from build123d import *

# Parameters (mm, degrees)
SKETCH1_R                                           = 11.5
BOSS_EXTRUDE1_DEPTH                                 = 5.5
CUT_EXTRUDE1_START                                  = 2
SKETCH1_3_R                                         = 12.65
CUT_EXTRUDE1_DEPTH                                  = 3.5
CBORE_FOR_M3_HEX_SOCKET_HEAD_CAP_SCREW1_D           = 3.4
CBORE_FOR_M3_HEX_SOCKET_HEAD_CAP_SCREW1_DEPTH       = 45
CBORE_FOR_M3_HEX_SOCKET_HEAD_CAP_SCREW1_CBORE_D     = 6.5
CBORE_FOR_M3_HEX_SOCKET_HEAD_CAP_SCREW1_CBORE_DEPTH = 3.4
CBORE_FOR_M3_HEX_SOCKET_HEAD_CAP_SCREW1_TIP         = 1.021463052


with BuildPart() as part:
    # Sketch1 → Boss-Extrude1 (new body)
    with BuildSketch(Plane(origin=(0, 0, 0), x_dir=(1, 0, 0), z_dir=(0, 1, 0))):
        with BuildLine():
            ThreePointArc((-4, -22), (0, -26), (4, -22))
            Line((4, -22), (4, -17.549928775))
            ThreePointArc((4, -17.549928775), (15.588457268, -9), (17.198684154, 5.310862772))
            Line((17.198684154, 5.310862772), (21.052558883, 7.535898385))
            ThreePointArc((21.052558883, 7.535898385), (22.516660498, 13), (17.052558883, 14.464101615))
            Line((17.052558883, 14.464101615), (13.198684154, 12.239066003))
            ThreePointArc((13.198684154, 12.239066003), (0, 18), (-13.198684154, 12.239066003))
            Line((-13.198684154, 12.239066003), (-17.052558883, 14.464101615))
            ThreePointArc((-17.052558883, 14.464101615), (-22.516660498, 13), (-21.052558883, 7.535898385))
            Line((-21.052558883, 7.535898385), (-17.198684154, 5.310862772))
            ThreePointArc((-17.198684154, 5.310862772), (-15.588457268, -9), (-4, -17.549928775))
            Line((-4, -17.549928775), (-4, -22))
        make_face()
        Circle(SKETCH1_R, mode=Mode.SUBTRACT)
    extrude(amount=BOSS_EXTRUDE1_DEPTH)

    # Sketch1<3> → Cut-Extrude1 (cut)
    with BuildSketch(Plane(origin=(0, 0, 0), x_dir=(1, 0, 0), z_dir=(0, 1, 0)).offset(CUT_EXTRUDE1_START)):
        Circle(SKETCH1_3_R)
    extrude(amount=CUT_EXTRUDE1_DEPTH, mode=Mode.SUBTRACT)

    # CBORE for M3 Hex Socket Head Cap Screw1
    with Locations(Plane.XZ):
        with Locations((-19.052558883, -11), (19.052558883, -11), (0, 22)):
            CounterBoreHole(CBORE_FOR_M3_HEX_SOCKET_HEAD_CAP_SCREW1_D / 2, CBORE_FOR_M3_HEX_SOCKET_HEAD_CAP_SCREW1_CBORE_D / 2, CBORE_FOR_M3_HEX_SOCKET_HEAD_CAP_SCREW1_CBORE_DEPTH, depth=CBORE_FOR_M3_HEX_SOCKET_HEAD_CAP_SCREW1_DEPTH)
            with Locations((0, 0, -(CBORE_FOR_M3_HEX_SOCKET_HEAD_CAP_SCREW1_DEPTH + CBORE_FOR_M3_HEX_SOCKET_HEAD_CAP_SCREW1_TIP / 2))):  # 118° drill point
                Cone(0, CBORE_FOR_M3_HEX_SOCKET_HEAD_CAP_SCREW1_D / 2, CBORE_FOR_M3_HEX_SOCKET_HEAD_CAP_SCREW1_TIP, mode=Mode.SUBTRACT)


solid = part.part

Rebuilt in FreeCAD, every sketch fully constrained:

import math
import FreeCAD as App
import Part
import Sketcher
from FreeCAD import Vector
Q = App.Units.Quantity

doc = App.newDocument("Part")
body = doc.addObject("PartDesign::Body", "Body")

# Sketch on XZ plane
sketch1 = doc.addObject("Sketcher::SketchObject", "Sketch")
body.addObject(sketch1)
sketch1.AttachmentSupport = (doc.XZ_Plane, [""])
sketch1.MapMode = "FlatFace"
sketch1.addGeometry([
    Part.ArcOfCircle(Part.Circle(Vector(0, 22, 0), Vector(0, 0, 1), 4), math.radians(0), math.radians(180)),  # 0
    Part.LineSegment(Vector(4, 22, 0), Vector(4, 17.549929, 0)),  # 1
    Part.ArcOfCircle(Part.Circle(Vector(0, 0, 0), Vector(0, 0, 1), 18), math.radians(-17.160412), math.radians(77.160412)),  # 2
    Part.LineSegment(Vector(17.198684, -5.310863, 0), Vector(21.052559, -7.535898, 0)),  # 3
    Part.ArcOfCircle(Part.Circle(Vector(19.052559, -11, 0), Vector(0, 0, 1), 4), math.radians(-120), math.radians(60)),  # 4
    Part.LineSegment(Vector(17.052559, -14.464102, 0), Vector(13.198684, -12.239066, 0)),  # 5
    Part.ArcOfCircle(Part.Circle(Vector(0, 0, 0), Vector(0, 0, 1), 18), math.radians(-137.160412), math.radians(-42.839588)),  # 6
    Part.LineSegment(Vector(-13.198684, -12.239066, 0), Vector(-17.052559, -14.464102, 0)),  # 7
    Part.ArcOfCircle(Part.Circle(Vector(-19.052559, -11, 0), Vector(0, 0, 1), 4), math.radians(120), math.radians(300)),  # 8
    Part.LineSegment(Vector(-21.052559, -7.535898, 0), Vector(-17.198684, -5.310863, 0)),  # 9
    Part.ArcOfCircle(Part.Circle(Vector(0, 0, 0), Vector(0, 0, 1), 18), math.radians(102.839588), math.radians(197.160412)),  # 10
    Part.LineSegment(Vector(-4, 17.549929, 0), Vector(-4, 22, 0)),  # 11
    Part.Circle(Vector(0, 0, 0), Vector(0, 0, 1), 11.5),  # 12
], False)
sketch1.addConstraint([
    Sketcher.Constraint("Tangent", 0, 1, 1, 1),
    Sketcher.Constraint("Coincident", 1, 2, 2, 2),
    Sketcher.Constraint("Coincident", 2, 1, 3, 1),
    Sketcher.Constraint("Tangent", 3, 2, 4, 2),
    Sketcher.Constraint("Tangent", 4, 1, 5, 1),
    Sketcher.Constraint("Coincident", 5, 2, 6, 2),
    Sketcher.Constraint("Coincident", 6, 1, 7, 1),
    Sketcher.Constraint("Tangent", 7, 2, 8, 2),
    Sketcher.Constraint("Tangent", 8, 1, 9, 1),
    Sketcher.Constraint("Coincident", 9, 2, 10, 2),
    Sketcher.Constraint("Coincident", 10, 1, 11, 1),
    Sketcher.Constraint("Tangent", 11, 2, 0, 2),
    Sketcher.Constraint("Vertical", 1),
    Sketcher.Constraint("Vertical", 11),
    Sketcher.Constraint("Coincident", 2, 3, -1, 1),
    Sketcher.Constraint("Coincident", 6, 3, -1, 1),
    Sketcher.Constraint("Coincident", 10, 3, -1, 1),
    Sketcher.Constraint("Coincident", 12, 3, -1, 1),
    Sketcher.Constraint("Equal", 0, 4),
    Sketcher.Constraint("Equal", 2, 6),
    Sketcher.Constraint("Equal", 4, 8),
    Sketcher.Constraint("Equal", 6, 10),
    Sketcher.Constraint("Symmetric", 4, 3, 8, 3, -2),
    Sketcher.Constraint("PointOnObject", 0, 3, -2),
    Sketcher.Constraint("Parallel", 3, 5),
    Sketcher.Constraint("Parallel", 7, 9),
    Sketcher.Constraint("Horizontal", 5, 2, 6, 1),
    Sketcher.Constraint("Equal", 3, 5),
    Sketcher.Constraint("Diameter", 12, 23.0),
    Sketcher.Constraint("Radius", 0, 4.0),
    Sketcher.Constraint("Radius", 2, 18.0),
    Sketcher.Constraint("Angle", 3, Q("-30 deg")),
    Sketcher.Constraint("DistanceY", -1, 1, 0, 3, 22.0),
    Sketcher.Constraint("DistanceY", 4, 3, -1, 1, 11.0),
])
pad1 = doc.addObject("PartDesign::Pad", "Pad")
body.addObject(pad1)
pad1.Profile = sketch1
pad1.Length = 5.5
pad1.Reversed = True

# Sketch on XZ plane
sketch2 = doc.addObject("Sketcher::SketchObject", "Sketch001")
body.addObject(sketch2)
sketch2.AttachmentSupport = (doc.XZ_Plane, [""])
sketch2.MapMode = "FlatFace"
sketch2.AttachmentOffset = App.Placement(Vector(0, 0, -2), App.Rotation())
sketch2.addGeometry(Part.Circle(Vector(0, 0, 0), Vector(0, 0, 1), 12.65), False)
sketch2.addConstraint([
    Sketcher.Constraint("Coincident", 0, 3, -1, 1),
    Sketcher.Constraint("Diameter", 0, 25.3),
])
pocket1 = doc.addObject("PartDesign::Pocket", "Pocket")
body.addObject(pocket1)
pocket1.Profile = sketch2
pocket1.Length = 3.5

# Sketch on XZ plane
sketch3 = doc.addObject("Sketcher::SketchObject", "Sketch002")
body.addObject(sketch3)
sketch3.AttachmentSupport = (doc.XZ_Plane, [""])
sketch3.MapMode = "FlatFace"
sketch3.addGeometry([
    Part.Circle(Vector(-19.052559, -11, 0), Vector(0, 0, 1), 1.7),
    Part.Circle(Vector(19.052559, -11, 0), Vector(0, 0, 1), 1.7),
    Part.Circle(Vector(0, 22, 0), Vector(0, 0, 1), 1.7),
], False)
sketch3.addConstraint([
    Sketcher.Constraint("Equal", 0, 1),
    Sketcher.Constraint("Equal", 1, 2),
    Sketcher.Constraint("Symmetric", 0, 3, 1, 3, -2),
    Sketcher.Constraint("PointOnObject", 2, 3, -2),
    Sketcher.Constraint("Diameter", 0, 3.4),
    Sketcher.Constraint("DistanceY", 0, 3, -1, 1, 11.0),
    Sketcher.Constraint("DistanceY", -1, 1, 2, 3, 22.0),
    Sketcher.Constraint("DistanceX", 0, 3, -1, 1, 19.052559),
])
doc.recompute()
hole = doc.addObject("PartDesign::Hole", "Hole")
body.addObject(hole)
hole.Profile = sketch3
hole.ThreadType = "None"
hole.Diameter = 3.4
hole.DepthType = "Dimension"
hole.Depth = 45
hole.DrillPoint = "Angled"
hole.DrillPointAngle = 118
hole.HoleCutType = "Counterbore"
hole.HoleCutDiameter = 6.5
hole.HoleCutDepth = 3.4

doc.recompute()
